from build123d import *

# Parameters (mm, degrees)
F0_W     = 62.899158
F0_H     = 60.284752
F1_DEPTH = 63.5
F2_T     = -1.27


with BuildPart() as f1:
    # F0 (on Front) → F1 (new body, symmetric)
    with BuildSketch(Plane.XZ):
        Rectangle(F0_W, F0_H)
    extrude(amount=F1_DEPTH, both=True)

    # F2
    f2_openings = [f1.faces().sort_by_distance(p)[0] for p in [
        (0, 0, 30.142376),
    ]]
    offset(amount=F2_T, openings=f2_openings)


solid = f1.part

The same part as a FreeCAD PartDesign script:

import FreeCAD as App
import Part
import Sketcher
from FreeCAD import Vector
Q = App.Units.Quantity


def faces_at(feature, points):
    """Names of the faces that lie closest to the given points."""
    faces = feature.Shape.Faces
    near = lambda p: min(range(len(faces)), key=lambda i: faces[i].distToShape(Part.Vertex(*p))[0])
    return sorted({f"Face{near(p) + 1}" for p in points})

doc = App.newDocument("Part")
body = doc.addObject("PartDesign::Body", "Body")

# Sketch on XZ plane
sketch1 = body.newObject("Sketcher::SketchObject", "Sketch")
sketch1.AttachmentSupport = (doc.getObject("XZ_Plane"), [""])
sketch1.MapMode = "FlatFace"
sketch1.addGeometry([
    Part.LineSegment(Vector(-31, 30, 0), Vector(-31, -30, 0)),
    Part.LineSegment(Vector(-31, -30, 0), Vector(31, -30, 0)),
    Part.LineSegment(Vector(31, -30, 0), Vector(31, 30, 0)),
    Part.LineSegment(Vector(31, 30, 0), Vector(-31, 30, 0)),
], False)
sketch1.addConstraint([
    Sketcher.Constraint("Coincident", 0, 2, 1, 1),
    Sketcher.Constraint("Coincident", 1, 2, 2, 1),
    Sketcher.Constraint("Coincident", 2, 2, 3, 1),
    Sketcher.Constraint("Coincident", 3, 2, 0, 1),
    Sketcher.Constraint("Vertical", 0),
    Sketcher.Constraint("Horizontal", 1),
    Sketcher.Constraint("Vertical", 2),
    Sketcher.Constraint("Horizontal", 3),
    Sketcher.Constraint("Symmetric", 0, 2, 2, 2, -1, 1),
    Sketcher.Constraint("DistanceY", 0, 2, 0, 1, 60.284752),
    Sketcher.Constraint("DistanceX", 1, 1, 1, 2, 62.899158),
])
pad1 = body.newObject("PartDesign::Pad", "Pad")
pad1.Profile = sketch1
pad1.Length = Q("5 in")
pad1.Midplane = True
doc.recompute()

thickness = body.newObject("PartDesign::Thickness", "Thickness")
thickness.Base = (pad1, faces_at(pad1, [(0, 0, 30.142)]))
thickness.Value = Q("0.05 in")
thickness.Reversed = True
thickness.Join = "Arc"

doc.recompute()
